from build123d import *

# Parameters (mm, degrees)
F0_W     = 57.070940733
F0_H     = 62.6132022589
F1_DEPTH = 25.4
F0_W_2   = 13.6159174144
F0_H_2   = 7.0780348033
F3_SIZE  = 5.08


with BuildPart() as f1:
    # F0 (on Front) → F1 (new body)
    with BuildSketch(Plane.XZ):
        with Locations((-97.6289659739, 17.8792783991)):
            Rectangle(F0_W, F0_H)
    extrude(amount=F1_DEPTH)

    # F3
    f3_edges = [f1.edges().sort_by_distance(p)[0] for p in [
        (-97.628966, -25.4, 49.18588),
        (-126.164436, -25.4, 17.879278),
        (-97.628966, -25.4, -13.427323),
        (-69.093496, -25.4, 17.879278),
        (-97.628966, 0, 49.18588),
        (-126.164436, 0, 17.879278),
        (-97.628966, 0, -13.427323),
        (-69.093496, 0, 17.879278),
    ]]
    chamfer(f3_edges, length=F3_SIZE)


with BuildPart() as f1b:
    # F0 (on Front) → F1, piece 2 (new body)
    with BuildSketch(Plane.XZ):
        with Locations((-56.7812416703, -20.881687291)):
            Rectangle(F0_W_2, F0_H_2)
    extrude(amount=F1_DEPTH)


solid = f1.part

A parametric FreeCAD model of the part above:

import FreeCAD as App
import Part
import Sketcher
from FreeCAD import Vector
Q = App.Units.Quantity


def edges_at(feature, points):
    """Names of the edges that pass closest to the given points."""
    edges = feature.Shape.Edges
    near = lambda p: min(range(len(edges)), key=lambda i: edges[i].distToShape(Part.Vertex(*p))[0])
    return sorted({f"Edge{near(p) + 1}" for p in points})

doc = App.newDocument("Part")
body = doc.addObject("PartDesign::Body", "Body")

sketch1 = body.newObject("Sketcher::SketchObject", "Sketch")
sketch1.AttachmentSupport = (doc.getObject("XZ_Plane"), [""])
sketch1.MapMode = "FlatFace"
sketch1.addGeometry(Part.LineSegment(Vector(-126.164436, 49.18588, 0), Vector(-126.164436, -13.427323, 0)), False)
sketch1.addGeometry(Part.LineSegment(Vector(-126.164436, -13.427323, 0), Vector(-69.093496, -13.427323, 0)), False)
sketch1.addGeometry(Part.LineSegment(Vector(-69.093496, -13.427323, 0), Vector(-69.093496, 49.18588, 0)), False)
sketch1.addGeometry(Part.LineSegment(Vector(-69.093496, 49.18588, 0), Vector(-126.164436, 49.18588, 0)), False)
sketch1.addConstraint(Sketcher.Constraint("Coincident", 0, 2, 1, 1))
sketch1.addConstraint(Sketcher.Constraint("Coincident", 1, 2, 2, 1))
sketch1.addConstraint(Sketcher.Constraint("Coincident", 2, 2, 3, 1))
sketch1.addConstraint(Sketcher.Constraint("Coincident", 3, 2, 0, 1))
sketch1.addConstraint(Sketcher.Constraint("Vertical", 0))
sketch1.addConstraint(Sketcher.Constraint("Horizontal", 1))
sketch1.addConstraint(Sketcher.Constraint("Vertical", 2))
sketch1.addConstraint(Sketcher.Constraint("Horizontal", 3))
sketch1.addConstraint(Sketcher.Constraint("DistanceX", 1, 1, 1, 2, Q("57.070941 mm")))
sketch1.addConstraint(Sketcher.Constraint("DistanceY", 0, 2, 0, 1, Q("62.613202 mm")))
sketch1.addConstraint(Sketcher.Constraint("DistanceY", -1, 1, 2, 2, Q("49.18588 mm")))
sketch1.addConstraint(Sketcher.Constraint("DistanceX", 0, 2, -1, 1, Q("126.164436 mm")))
pad1 = body.newObject("PartDesign::Pad", "Pad")
pad1.Profile = sketch1
pad1.Length = Q("1 in")
doc.recompute()

chamfer = body.newObject("PartDesign::Chamfer", "Chamfer")
chamfer.Base = (pad1, edges_at(pad1, [
    (-97.629, -25.4, 49.186),
    (-126.164, -25.4, 17.879),
    (-97.629, -25.4, -13.427),
    (-69.093, -25.4, 17.879),
    (-97.629, 0, 49.186),
    (-126.164, 0, 17.879),
    (-97.629, 0, -13.427),
    (-69.093, 0, 17.879),
]))
chamfer.Size = Q("0.2 in")
body2 = doc.addObject("PartDesign::Body", "Body001")

sketch2 = body2.newObject("Sketcher::SketchObject", "Sketch001")
sketch2.AttachmentSupport = (doc.getObject("XZ_Plane001"), [""])
sketch2.MapMode = "FlatFace"
sketch2.addGeometry(Part.LineSegment(Vector(-63.5892, -17.34267, 0), Vector(-63.5892, -24.420705, 0)), False)
sketch2.addGeometry(Part.LineSegment(Vector(-63.5892, -24.420705, 0), Vector(-49.973283, -24.420705, 0)), False)
sketch2.addGeometry(Part.LineSegment(Vector(-49.973283, -24.420705, 0), Vector(-49.973283, -17.34267, 0)), False)
sketch2.addGeometry(Part.LineSegment(Vector(-49.973283, -17.34267, 0), Vector(-63.5892, -17.34267, 0)), False)
sketch2.addConstraint(Sketcher.Constraint("Coincident", 0, 2, 1, 1))
sketch2.addConstraint(Sketcher.Constraint("Coincident", 1, 2, 2, 1))
sketch2.addConstraint(Sketcher.Constraint("Coincident", 2, 2, 3, 1))
sketch2.addConstraint(Sketcher.Constraint("Coincident", 3, 2, 0, 1))
sketch2.addConstraint(Sketcher.Constraint("Vertical", 0))
sketch2.addConstraint(Sketcher.Constraint("Horizontal", 1))
sketch2.addConstraint(Sketcher.Constraint("Vertical", 2))
sketch2.addConstraint(Sketcher.Constraint("Horizontal", 3))
sketch2.addConstraint(Sketcher.Constraint("DistanceX", 0, 2, -1, 1, Q("63.5892 mm")))
sketch2.addConstraint(Sketcher.Constraint("DistanceX", 1, 1, 1, 2, Q("13.615917 mm")))
sketch2.addConstraint(Sketcher.Constraint("DistanceY", 0, 2, 0, 1, Q("7.078035 mm")))
sketch2.addConstraint(Sketcher.Constraint("DistanceY", 2, 2, -1, 1, Q("17.34267 mm")))
pad2 = body2.newObject("PartDesign::Pad", "Pad001")
pad2.Profile = sketch2
pad2.Length = Q("1 in")
body2.Visibility = False

doc.recompute()
